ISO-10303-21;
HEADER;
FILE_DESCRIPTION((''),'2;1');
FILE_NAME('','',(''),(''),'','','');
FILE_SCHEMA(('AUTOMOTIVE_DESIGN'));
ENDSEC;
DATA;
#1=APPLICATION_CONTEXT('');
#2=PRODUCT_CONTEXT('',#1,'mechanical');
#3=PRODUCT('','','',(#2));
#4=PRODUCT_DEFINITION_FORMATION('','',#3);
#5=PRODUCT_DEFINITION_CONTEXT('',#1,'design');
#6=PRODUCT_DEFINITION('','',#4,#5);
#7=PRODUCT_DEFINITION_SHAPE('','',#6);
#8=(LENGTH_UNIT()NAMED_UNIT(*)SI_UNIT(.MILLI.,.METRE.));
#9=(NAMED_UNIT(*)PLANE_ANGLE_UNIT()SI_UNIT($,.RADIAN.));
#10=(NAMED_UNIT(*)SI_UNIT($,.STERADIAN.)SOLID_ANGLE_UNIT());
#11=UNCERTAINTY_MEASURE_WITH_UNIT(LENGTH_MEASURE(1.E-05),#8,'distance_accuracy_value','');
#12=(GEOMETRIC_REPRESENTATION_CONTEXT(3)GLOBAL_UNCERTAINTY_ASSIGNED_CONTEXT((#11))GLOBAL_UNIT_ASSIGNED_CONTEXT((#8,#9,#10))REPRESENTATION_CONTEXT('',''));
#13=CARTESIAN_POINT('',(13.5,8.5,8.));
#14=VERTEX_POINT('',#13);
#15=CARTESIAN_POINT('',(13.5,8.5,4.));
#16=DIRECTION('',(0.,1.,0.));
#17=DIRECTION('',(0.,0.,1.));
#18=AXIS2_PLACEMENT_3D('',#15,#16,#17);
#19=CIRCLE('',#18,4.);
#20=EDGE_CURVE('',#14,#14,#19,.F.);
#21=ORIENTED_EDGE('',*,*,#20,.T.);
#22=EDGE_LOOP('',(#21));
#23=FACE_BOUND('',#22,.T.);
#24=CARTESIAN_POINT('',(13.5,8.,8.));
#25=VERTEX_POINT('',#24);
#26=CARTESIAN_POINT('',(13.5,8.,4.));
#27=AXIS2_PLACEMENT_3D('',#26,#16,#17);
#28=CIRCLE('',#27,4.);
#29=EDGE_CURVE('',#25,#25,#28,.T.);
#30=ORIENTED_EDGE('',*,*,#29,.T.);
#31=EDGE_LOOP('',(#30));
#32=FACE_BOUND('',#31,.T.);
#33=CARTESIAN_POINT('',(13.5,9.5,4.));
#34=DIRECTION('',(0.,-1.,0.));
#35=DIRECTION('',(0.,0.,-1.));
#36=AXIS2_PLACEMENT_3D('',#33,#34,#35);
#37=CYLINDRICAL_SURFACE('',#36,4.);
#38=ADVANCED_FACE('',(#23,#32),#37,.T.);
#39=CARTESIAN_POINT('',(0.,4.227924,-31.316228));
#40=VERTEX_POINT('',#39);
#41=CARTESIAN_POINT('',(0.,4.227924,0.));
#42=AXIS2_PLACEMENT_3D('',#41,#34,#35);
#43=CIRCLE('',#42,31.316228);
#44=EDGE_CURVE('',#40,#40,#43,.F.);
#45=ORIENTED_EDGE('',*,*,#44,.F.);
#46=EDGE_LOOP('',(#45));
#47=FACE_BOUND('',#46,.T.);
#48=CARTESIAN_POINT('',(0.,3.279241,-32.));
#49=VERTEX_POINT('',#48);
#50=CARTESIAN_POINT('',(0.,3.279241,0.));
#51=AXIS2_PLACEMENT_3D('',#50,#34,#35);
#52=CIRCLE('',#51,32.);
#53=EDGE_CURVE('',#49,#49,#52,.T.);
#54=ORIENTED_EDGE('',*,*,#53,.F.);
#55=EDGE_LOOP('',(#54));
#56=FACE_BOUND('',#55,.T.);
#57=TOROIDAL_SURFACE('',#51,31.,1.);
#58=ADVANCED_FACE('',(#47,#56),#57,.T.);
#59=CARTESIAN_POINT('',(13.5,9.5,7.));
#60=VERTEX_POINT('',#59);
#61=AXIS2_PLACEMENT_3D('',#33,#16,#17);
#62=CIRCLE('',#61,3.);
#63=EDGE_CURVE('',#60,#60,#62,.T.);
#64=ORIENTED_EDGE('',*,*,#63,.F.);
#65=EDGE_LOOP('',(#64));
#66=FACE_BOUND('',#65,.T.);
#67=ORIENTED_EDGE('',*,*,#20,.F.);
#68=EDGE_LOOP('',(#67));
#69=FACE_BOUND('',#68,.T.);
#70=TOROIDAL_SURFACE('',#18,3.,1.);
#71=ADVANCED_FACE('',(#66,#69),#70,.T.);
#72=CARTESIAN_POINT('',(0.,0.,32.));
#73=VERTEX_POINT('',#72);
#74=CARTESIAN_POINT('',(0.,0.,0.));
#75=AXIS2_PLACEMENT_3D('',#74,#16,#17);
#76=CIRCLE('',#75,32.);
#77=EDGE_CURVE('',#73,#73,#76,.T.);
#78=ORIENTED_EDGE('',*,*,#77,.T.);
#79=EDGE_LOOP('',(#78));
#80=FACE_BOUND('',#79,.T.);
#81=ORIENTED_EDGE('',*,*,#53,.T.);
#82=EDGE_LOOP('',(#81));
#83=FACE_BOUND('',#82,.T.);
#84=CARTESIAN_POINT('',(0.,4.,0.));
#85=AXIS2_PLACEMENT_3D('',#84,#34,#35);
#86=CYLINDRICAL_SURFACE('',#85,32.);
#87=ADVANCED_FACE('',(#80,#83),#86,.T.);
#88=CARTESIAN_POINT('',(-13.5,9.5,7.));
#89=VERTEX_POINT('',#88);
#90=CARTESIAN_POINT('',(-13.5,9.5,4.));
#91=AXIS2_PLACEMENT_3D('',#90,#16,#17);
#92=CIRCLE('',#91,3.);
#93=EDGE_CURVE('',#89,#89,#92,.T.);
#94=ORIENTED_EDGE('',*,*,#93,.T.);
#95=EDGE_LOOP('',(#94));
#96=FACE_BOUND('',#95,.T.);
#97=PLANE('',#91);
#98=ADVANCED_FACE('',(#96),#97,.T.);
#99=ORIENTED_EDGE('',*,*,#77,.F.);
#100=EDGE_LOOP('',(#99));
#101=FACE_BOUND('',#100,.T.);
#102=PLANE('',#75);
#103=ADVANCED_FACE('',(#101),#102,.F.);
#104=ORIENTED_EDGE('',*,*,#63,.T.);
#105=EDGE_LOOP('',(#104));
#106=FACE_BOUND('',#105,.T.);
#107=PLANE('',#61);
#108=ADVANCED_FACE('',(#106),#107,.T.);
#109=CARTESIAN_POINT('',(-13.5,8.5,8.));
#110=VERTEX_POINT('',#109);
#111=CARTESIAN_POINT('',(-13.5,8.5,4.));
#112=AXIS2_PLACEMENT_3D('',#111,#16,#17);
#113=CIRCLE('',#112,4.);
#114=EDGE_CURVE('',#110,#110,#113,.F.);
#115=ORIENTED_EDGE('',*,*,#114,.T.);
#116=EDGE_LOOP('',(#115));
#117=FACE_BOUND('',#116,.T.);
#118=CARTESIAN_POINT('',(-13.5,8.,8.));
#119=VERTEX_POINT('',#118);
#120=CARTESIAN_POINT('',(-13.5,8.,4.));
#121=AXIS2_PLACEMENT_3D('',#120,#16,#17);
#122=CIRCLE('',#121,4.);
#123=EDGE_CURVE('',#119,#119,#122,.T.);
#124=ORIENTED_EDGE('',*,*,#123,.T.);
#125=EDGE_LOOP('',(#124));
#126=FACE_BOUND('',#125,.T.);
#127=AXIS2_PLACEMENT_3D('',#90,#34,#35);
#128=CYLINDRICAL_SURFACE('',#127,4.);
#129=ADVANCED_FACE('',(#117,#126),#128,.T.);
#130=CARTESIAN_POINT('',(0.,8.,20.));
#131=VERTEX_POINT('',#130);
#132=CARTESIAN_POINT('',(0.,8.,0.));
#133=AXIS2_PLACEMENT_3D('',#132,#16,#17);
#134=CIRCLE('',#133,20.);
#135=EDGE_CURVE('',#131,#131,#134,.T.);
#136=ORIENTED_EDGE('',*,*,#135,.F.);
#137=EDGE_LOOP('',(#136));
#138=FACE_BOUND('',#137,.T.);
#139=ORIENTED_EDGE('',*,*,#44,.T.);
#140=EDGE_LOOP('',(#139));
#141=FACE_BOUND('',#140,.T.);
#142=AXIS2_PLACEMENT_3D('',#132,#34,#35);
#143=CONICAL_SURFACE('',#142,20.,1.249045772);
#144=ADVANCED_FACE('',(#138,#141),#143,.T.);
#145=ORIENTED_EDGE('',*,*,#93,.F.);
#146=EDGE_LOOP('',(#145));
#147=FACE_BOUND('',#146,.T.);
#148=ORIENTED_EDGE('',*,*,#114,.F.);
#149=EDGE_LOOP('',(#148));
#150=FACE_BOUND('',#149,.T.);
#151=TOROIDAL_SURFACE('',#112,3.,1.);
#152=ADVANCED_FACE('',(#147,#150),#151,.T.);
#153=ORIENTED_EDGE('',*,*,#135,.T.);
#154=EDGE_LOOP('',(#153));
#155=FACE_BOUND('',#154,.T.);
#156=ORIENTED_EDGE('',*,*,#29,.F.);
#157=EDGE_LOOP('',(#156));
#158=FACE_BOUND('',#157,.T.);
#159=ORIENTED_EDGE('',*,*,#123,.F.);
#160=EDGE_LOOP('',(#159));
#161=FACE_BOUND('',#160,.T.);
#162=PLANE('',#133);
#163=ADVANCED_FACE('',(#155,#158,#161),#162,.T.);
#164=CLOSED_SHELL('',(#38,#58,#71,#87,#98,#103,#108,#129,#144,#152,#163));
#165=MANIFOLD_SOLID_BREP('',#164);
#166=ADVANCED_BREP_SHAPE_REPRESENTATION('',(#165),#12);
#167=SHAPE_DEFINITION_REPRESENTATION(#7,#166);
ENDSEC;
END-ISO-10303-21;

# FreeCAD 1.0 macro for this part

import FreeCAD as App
import Part
import Sketcher

V = App.Vector
Q = App.Units.Quantity


def edges_at(feature, points):
    """Names of the edges that pass closest to the given points."""
    edges = feature.Shape.Edges
    near = lambda p: min(range(len(edges)), key=lambda i: edges[i].distToShape(Part.Vertex(*p))[0])
    return sorted({f"Edge{near(p) + 1}" for p in points})

doc = App.newDocument("Part")
body = doc.addObject("PartDesign::Body", "Body")

sketch1 = doc.addObject("Sketcher::SketchObject", "Sketch")
body.addObject(sketch1)
sketch1.AttachmentSupport = (doc.XZ_Plane, [""])
sketch1.MapMode = "FlatFace"
sketch1.addGeometry(Part.Circle(V(0, 0, 0), V(0, 0, 1), 32), False)
sketch1.addConstraint(Sketcher.Constraint("Coincident", 0, 3, -1, 1))
sketch1.addConstraint(Sketcher.Constraint("Diameter", 0, Q("64 mm")))
pad1 = doc.addObject("PartDesign::Pad", "Pad")
body.addObject(pad1)
pad1.Profile = sketch1
pad1.Length = 4
pad1.Reversed = True

sketch2 = doc.addObject("Sketcher::SketchObject", "Sketch001")
body.addObject(sketch2)
sketch2.AttachmentSupport = (doc.XZ_Plane, [""])
sketch2.MapMode = "FlatFace"
sketch2.AttachmentOffset = App.Placement(V(0, 0, -8), App.Rotation())
sketch2.addGeometry(Part.Circle(V(0, 0, 0), V(0, 0, 1), 20), False)
sketch2.addConstraint(Sketcher.Constraint("Coincident", 0, 3, -1, 1))
sketch2.addConstraint(Sketcher.Constraint("Diameter", 0, Q("40 mm")))

sketch3 = doc.addObject("Sketcher::SketchObject", "Sketch002")
body.addObject(sketch3)
sketch3.AttachmentSupport = (doc.XZ_Plane, [""])
sketch3.MapMode = "FlatFace"
sketch3.AttachmentOffset = App.Placement(V(0, 0, -4), App.Rotation())
sketch3.addGeometry(Part.Circle(V(0, 0, 0), V(0, 0, 1), 32), False)
sketch3.addConstraint(Sketcher.Constraint("Coincident", 0, 3, -1, 1))
sketch3.addConstraint(Sketcher.Constraint("Diameter", 0, Q("64 mm")))

additiveloft = doc.addObject("PartDesign::AdditiveLoft", "AdditiveLoft")
body.addObject(additiveloft)
additiveloft.Profile = sketch2
additiveloft.Sections = [sketch3]
doc.recompute()

fillet = doc.addObject("PartDesign::Fillet", "Fillet")
body.addObject(fillet)
fillet.Base = (additiveloft, edges_at(additiveloft, [(-22.627, 4, 22.627)]))
fillet.Radius = 1

sketch4 = doc.addObject("Sketcher::SketchObject", "Sketch003")
body.addObject(sketch4)
sketch4.AttachmentSupport = (doc.XZ_Plane, [""])
sketch4.MapMode = "FlatFace"
sketch4.AttachmentOffset = App.Placement(V(0, 0, -8), App.Rotation())
sketch4.addGeometry(Part.Circle(V(-13.5, 4, 0), V(0, 0, 1), 4), False)
sketch4.addGeometry(Part.Circle(V(13.5, 4, 0), V(0, 0, 1), 4), False)
sketch4.addConstraint(Sketcher.Constraint("Equal", 0, 1))
sketch4.addConstraint(Sketcher.Constraint("Symmetric", 0, 3, 1, 3, -2))
sketch4.addConstraint(Sketcher.Constraint("Diameter", 0, Q("8 mm")))
sketch4.addConstraint(Sketcher.Constraint("DistanceY", -1, 1, 0, 3, Q("4 mm")))
sketch4.addConstraint(Sketcher.Constraint("DistanceX", 0, 3, 1, 3, Q("27 mm")))
pad2 = doc.addObject("PartDesign::Pad", "Pad001")
body.addObject(pad2)
pad2.Profile = sketch4
pad2.Length = 1.5
pad2.Reversed = True
doc.recompute()

fillet2 = doc.addObject("PartDesign::Fillet", "Fillet001")
body.addObject(fillet2)
fillet2.Base = (pad2, edges_at(pad2, [(-13.5, 9.5, 0), (13.5, 9.5, 0)]))
fillet2.Radius = 1

doc.recompute()
